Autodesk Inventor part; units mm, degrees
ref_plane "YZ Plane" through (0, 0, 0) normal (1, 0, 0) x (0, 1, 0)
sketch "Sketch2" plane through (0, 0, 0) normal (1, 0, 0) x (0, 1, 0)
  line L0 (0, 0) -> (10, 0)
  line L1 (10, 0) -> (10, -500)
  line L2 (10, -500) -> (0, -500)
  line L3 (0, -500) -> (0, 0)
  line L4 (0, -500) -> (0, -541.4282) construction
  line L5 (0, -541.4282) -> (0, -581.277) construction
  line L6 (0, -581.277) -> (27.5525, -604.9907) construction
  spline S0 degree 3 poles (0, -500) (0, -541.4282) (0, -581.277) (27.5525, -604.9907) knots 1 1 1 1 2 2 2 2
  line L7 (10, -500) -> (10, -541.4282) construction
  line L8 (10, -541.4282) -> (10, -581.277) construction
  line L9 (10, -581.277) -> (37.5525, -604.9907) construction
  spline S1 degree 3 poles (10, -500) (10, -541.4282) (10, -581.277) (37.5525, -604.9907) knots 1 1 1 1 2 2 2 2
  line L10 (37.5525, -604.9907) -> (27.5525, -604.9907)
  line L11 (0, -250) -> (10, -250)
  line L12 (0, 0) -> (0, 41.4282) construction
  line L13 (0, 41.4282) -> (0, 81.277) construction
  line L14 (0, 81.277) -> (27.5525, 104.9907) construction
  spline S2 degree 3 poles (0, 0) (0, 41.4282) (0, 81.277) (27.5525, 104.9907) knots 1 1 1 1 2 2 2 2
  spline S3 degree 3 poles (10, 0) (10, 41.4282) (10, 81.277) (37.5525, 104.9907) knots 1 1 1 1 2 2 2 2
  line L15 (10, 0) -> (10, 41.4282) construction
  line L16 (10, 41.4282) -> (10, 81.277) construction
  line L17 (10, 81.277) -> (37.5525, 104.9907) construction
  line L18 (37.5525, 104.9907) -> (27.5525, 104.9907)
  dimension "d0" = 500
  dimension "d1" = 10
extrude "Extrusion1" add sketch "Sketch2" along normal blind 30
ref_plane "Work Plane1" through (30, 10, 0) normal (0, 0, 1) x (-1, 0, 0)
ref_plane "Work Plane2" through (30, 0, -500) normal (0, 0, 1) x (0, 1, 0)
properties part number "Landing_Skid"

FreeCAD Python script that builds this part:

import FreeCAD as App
import Part
import Sketcher

V = App.Vector

doc = App.newDocument("Part")
body = doc.addObject("PartDesign::Body", "Body")

# Sketch on YZ plane
sketch1 = body.newObject("Sketcher::SketchObject", "Sketch")
sketch1.AttachmentSupport = (doc.getObject("YZ_Plane"), [""])
sketch1.MapMode = "FlatFace"
sketch1.addGeometry([
    Part.BSplineCurve([V(0, 0, 0), V(0, 41.4282, 0), V(0, 81.277, 0), V(27.5525, 104.9907, 0)], [4, 4], [1, 2], False, 3, [1, 1, 1, 1], False),  # 0
    Part.LineSegment(V(0, 0, 0), V(0, -500, 0)),  # 1
    Part.BSplineCurve([V(0, -500, 0), V(0, -541.4282, 0), V(0, -581.277, 0), V(27.5525, -604.9907, 0)], [4, 4], [1, 2], False, 3, [1, 1, 1, 1], False),  # 2
    Part.LineSegment(V(27.5525, -604.9907, 0), V(37.5525, -604.9907, 0)),  # 3
    Part.BSplineCurve([V(10, -500, 0), V(10, -541.4282, 0), V(10, -581.277, 0), V(37.5525, -604.9907, 0)], [4, 4], [1, 2], False, 3, [1, 1, 1, 1], False),  # 4
    Part.LineSegment(V(10, -500, 0), V(10, 0, 0)),  # 5
    Part.BSplineCurve([V(10, 0, 0), V(10, 41.4282, 0), V(10, 81.277, 0), V(37.5525, 104.9907, 0)], [4, 4], [1, 2], False, 3, [1, 1, 1, 1], False),  # 6
    Part.LineSegment(V(37.5525, 104.9907, 0), V(27.5525, 104.9907, 0)),  # 7
], False)
sketch1.addConstraint([
    Sketcher.Constraint("Block", 0),
    Sketcher.Constraint("Block", 2),
    Sketcher.Constraint("Block", 4),
    Sketcher.Constraint("Block", 6),
    Sketcher.Constraint("Coincident", 0, 1, 1, 1),
    Sketcher.Constraint("Coincident", 1, 2, 2, 1),
    Sketcher.Constraint("Coincident", 2, 2, 3, 1),
    Sketcher.Constraint("Coincident", 3, 2, 4, 2),
    Sketcher.Constraint("Coincident", 4, 1, 5, 1),
    Sketcher.Constraint("Coincident", 5, 2, 6, 1),
    Sketcher.Constraint("Coincident", 6, 2, 7, 1),
    Sketcher.Constraint("Coincident", 7, 2, 0, 2),
])
pad1 = body.newObject("PartDesign::Pad", "Pad")
pad1.Profile = sketch1
pad1.Length = 30

doc.recompute()
